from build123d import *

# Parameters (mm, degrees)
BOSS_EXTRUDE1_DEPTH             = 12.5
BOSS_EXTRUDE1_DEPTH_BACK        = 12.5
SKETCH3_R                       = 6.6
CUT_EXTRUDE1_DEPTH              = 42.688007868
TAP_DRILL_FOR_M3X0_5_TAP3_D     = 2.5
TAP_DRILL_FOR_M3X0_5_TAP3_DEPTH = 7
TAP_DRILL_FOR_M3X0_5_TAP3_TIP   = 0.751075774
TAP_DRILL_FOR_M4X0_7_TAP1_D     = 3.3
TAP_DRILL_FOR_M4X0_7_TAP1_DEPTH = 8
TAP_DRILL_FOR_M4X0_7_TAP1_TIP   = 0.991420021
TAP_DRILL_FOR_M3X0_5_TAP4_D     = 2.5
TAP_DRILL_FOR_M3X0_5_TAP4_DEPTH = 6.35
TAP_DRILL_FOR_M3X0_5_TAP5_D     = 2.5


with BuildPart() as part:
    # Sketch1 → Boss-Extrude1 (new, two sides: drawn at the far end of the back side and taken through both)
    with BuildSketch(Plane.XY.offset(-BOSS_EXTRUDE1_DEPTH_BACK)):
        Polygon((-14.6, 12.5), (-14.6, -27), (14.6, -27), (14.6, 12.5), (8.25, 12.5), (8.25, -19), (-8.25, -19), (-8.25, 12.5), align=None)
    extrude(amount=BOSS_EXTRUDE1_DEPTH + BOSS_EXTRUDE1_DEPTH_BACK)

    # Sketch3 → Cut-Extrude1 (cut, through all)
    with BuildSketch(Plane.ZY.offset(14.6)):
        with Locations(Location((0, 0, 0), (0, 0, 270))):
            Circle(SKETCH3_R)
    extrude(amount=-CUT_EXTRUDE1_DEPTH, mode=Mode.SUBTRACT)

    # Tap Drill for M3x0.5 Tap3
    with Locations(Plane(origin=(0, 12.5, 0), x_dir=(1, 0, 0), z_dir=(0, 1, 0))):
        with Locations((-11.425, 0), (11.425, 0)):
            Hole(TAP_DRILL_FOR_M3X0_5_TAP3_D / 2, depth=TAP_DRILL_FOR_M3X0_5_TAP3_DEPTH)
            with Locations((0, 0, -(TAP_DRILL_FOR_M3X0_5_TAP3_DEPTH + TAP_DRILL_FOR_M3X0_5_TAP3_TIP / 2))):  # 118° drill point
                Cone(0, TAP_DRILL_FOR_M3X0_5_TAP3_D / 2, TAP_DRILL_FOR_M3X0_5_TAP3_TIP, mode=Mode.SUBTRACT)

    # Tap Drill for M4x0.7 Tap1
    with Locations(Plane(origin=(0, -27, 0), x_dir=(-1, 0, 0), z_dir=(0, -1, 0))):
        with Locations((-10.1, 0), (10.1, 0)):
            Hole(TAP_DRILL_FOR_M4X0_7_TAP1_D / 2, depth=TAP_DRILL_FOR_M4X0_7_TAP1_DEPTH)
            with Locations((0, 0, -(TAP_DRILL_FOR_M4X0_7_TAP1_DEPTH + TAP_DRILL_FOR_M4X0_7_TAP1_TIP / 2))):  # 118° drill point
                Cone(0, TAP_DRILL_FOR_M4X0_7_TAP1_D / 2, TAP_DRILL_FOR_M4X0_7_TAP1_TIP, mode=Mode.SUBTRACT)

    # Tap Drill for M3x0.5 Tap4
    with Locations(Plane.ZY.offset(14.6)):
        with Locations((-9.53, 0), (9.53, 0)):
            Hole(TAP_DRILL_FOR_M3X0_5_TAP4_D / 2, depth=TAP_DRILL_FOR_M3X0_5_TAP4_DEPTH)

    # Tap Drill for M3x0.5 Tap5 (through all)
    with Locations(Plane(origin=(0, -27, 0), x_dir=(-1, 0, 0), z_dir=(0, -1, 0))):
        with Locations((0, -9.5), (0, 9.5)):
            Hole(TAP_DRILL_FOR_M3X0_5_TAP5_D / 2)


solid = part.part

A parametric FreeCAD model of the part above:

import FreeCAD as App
import Part
import Sketcher
Q = App.Units.Quantity

doc = App.newDocument("Part")
body = doc.addObject("PartDesign::Body", "Body")

# Sketch on XY plane
sketch1 = body.newObject("Sketcher::SketchObject", "Sketch")
sketch1.AttachmentSupport = (doc.getObject("XY_Plane"), [""])
sketch1.MapMode = "FlatFace"
sketch1.addGeometry([
    Part.LineSegment(App.Vector(-15, 12, 0), App.Vector(-15, -27, 0)),  # 0
    Part.LineSegment(App.Vector(-15, -27, 0), App.Vector(15, -27, 0)),  # 1
    Part.LineSegment(App.Vector(15, -27, 0), App.Vector(15, 12, 0)),  # 2
    Part.LineSegment(App.Vector(15, 12, 0), App.Vector(8, 12, 0)),  # 3
    Part.LineSegment(App.Vector(8, 12, 0), App.Vector(8, -19, 0)),  # 4
    Part.LineSegment(App.Vector(8, -19, 0), App.Vector(-8, -19, 0)),  # 5
    Part.LineSegment(App.Vector(-8, -19, 0), App.Vector(-8, 12, 0)),  # 6
    Part.LineSegment(App.Vector(-8, 12, 0), App.Vector(-15, 12, 0)),  # 7
], False)
sketch1.addConstraint([
    Sketcher.Constraint("Coincident", 0, 2, 1, 1),
    Sketcher.Constraint("Coincident", 1, 2, 2, 1),
    Sketcher.Constraint("Coincident", 2, 2, 3, 1),
    Sketcher.Constraint("Coincident", 3, 2, 4, 1),
    Sketcher.Constraint("Coincident", 4, 2, 5, 1),
    Sketcher.Constraint("Coincident", 5, 2, 6, 1),
    Sketcher.Constraint("Coincident", 6, 2, 7, 1),
    Sketcher.Constraint("Coincident", 7, 2, 0, 1),
    Sketcher.Constraint("Vertical", 0),
    Sketcher.Constraint("Horizontal", 1),
    Sketcher.Constraint("Vertical", 2),
    Sketcher.Constraint("Horizontal", 3),
    Sketcher.Constraint("Vertical", 4),
    Sketcher.Constraint("Horizontal", 5),
    Sketcher.Constraint("Vertical", 6),
    Sketcher.Constraint("Horizontal", 7),
    Sketcher.Constraint("Symmetric", 3, 2, 6, 2, -2),
    Sketcher.Constraint("Equal", 3, 7),
    Sketcher.Constraint("DistanceX", 1, 1, 1, 2, Q("29.2 mm")),
    Sketcher.Constraint("DistanceX", 5, 2, 5, 1, Q("16.5 mm")),
    Sketcher.Constraint("DistanceY", 0, 2, 0, 1, Q("39.5 mm")),
    Sketcher.Constraint("DistanceY", 4, 2, 4, 1, Q("31.5 mm")),
    Sketcher.Constraint("DistanceY", 0, 2, -1, 1, Q("27 mm")),
])
pad1 = body.newObject("PartDesign::Pad", "Pad")
pad1.Profile = sketch1
pad1.Type = "TwoLengths"
pad1.Length = 12.5
pad1.Length2 = 12.5

# Sketch on YZ plane
sketch2 = body.newObject("Sketcher::SketchObject", "Sketch001")
sketch2.AttachmentSupport = (doc.getObject("YZ_Plane"), [""])
sketch2.MapMode = "FlatFace"
sketch2.AttachmentOffset = App.Placement(App.Vector(0, 0, -14.6), App.Rotation())
sketch2.addGeometry(Part.Circle(App.Vector(0, 0, 0), App.Vector(0, 0, 1), 7), False)
sketch2.addConstraint([
    Sketcher.Constraint("Coincident", 0, 3, -1, 1),
    Sketcher.Constraint("Diameter", 0, Q("13.2 mm")),
])
pocket1 = body.newObject("PartDesign::Pocket", "Pocket")
pocket1.Profile = sketch2
pocket1.Type = "ThroughAll"
pocket1.Reversed = True

# Sketch on XZ plane
sketch3 = body.newObject("Sketcher::SketchObject", "Sketch002")
sketch3.AttachmentSupport = (doc.getObject("XZ_Plane"), [""])
sketch3.MapMode = "FlatFace"
sketch3.AttachmentOffset = App.Placement(App.Vector(0, 0, -12.5), App.Rotation())
sketch3.addGeometry([
    Part.Circle(App.Vector(-11.4, 0, 0), App.Vector(0, 0, 1), 1.2),
    Part.Circle(App.Vector(11.4, 0, 0), App.Vector(0, 0, 1), 1.2),
], False)
sketch3.addConstraint([
    Sketcher.Constraint("Equal", 0, 1),
    Sketcher.Constraint("Symmetric", 0, 3, 1, 3, -1, 1),
    Sketcher.Constraint("PointOnObject", 0, 3, -1),
    Sketcher.Constraint("Diameter", 0, Q("2.5 mm")),
    Sketcher.Constraint("DistanceX", 0, 3, 1, 3, Q("22.85 mm")),
])
doc.recompute()
hole = body.newObject("PartDesign::Hole", "Hole")
hole.Profile = sketch3
hole.ThreadType = "None"
hole.Diameter = 2.5
hole.DepthType = "Dimension"
hole.Depth = 7
hole.DrillPoint = "Angled"
hole.DrillPointAngle = 118
hole.Reversed = True

# Sketch on XZ plane
sketch4 = body.newObject("Sketcher::SketchObject", "Sketch003")
sketch4.AttachmentSupport = (doc.getObject("XZ_Plane"), [""])
sketch4.MapMode = "FlatFace"
sketch4.AttachmentOffset = App.Placement(App.Vector(0, 0, 27), App.Rotation())
sketch4.addGeometry([
    Part.Circle(App.Vector(10.1, 0, 0), App.Vector(0, 0, 1), 1.6),
    Part.Circle(App.Vector(-10.1, 0, 0), App.Vector(0, 0, 1), 1.6),
], False)
sketch4.addConstraint([
    Sketcher.Constraint("Equal", 0, 1),
    Sketcher.Constraint("Symmetric", 0, 3, 1, 3, -1, 1),
    Sketcher.Constraint("PointOnObject", 0, 3, -1),
    Sketcher.Constraint("Diameter", 0, Q("3.3 mm")),
    Sketcher.Constraint("DistanceX", -1, 1, 0, 3, Q("10.1 mm")),
])
doc.recompute()
hole2 = body.newObject("PartDesign::Hole", "Hole001")
hole2.Profile = sketch4
hole2.ThreadType = "None"
hole2.Diameter = 3.3
hole2.DepthType = "Dimension"
hole2.Depth = 8
hole2.DrillPoint = "Angled"
hole2.DrillPointAngle = 118

# Sketch on YZ plane
sketch5 = body.newObject("Sketcher::SketchObject", "Sketch004")
sketch5.AttachmentSupport = (doc.getObject("YZ_Plane"), [""])
sketch5.MapMode = "FlatFace"
sketch5.AttachmentOffset = App.Placement(App.Vector(0, 0, -14.6), App.Rotation())
sketch5.addGeometry([
    Part.Circle(App.Vector(0, -9.5, 0), App.Vector(0, 0, 1), 1.2),
    Part.Circle(App.Vector(0, 9.5, 0), App.Vector(0, 0, 1), 1.2),
], False)
sketch5.addConstraint([
    Sketcher.Constraint("Equal", 0, 1),
    Sketcher.Constraint("Symmetric", 0, 3, 1, 3, -1, 1),
    Sketcher.Constraint("PointOnObject", 0, 3, -2),
    Sketcher.Constraint("Diameter", 0, Q("2.5 mm")),
    Sketcher.Constraint("DistanceY", 0, 3, -1, 1, Q("9.53 mm")),
])
doc.recompute()
hole3 = body.newObject("PartDesign::Hole", "Hole002")
hole3.Profile = sketch5
hole3.ThreadType = "None"
hole3.Diameter = 2.5
hole3.DepthType = "Dimension"
hole3.Depth = 6.35
hole3.DrillPoint = "Flat"
hole3.Reversed = True

# Sketch on XZ plane
sketch6 = body.newObject("Sketcher::SketchObject", "Sketch005")
sketch6.AttachmentSupport = (doc.getObject("XZ_Plane"), [""])
sketch6.MapMode = "FlatFace"
sketch6.AttachmentOffset = App.Placement(App.Vector(0, 0, 27), App.Rotation())
sketch6.addGeometry([
    Part.Circle(App.Vector(0, 9.5, 0), App.Vector(0, 0, 1), 1.2),
    Part.Circle(App.Vector(0, -9.5, 0), App.Vector(0, 0, 1), 1.2),
], False)
sketch6.addConstraint([
    Sketcher.Constraint("Equal", 0, 1),
    Sketcher.Constraint("Symmetric", 0, 3, 1, 3, -1, 1),
    Sketcher.Constraint("PointOnObject", 0, 3, -2),
    Sketcher.Constraint("Diameter", 0, Q("2.5 mm")),
    Sketcher.Constraint("DistanceY", 1, 3, 0, 3, Q("19 mm")),
])
doc.recompute()
hole4 = body.newObject("PartDesign::Hole", "Hole003")
hole4.Profile = sketch6
hole4.ThreadType = "None"
hole4.Diameter = 2.5
hole4.DepthType = "ThroughAll"

doc.recompute()
